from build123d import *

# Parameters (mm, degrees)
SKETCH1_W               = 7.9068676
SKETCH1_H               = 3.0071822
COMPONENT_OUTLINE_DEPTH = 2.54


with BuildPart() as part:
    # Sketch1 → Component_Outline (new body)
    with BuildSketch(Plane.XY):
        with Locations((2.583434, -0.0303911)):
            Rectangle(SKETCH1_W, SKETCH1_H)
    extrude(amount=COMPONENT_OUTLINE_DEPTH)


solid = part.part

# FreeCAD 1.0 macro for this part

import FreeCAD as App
import Part
import Sketcher

V = App.Vector
Q = App.Units.Quantity

doc = App.newDocument("Part")
body = doc.addObject("PartDesign::Body", "Body")

# Sketch on XY plane
sketch1 = body.newObject("Sketcher::SketchObject", "Sketch")
sketch1.AttachmentSupport = (doc.getObject("XY_Plane"), [""])
sketch1.MapMode = "FlatFace"
sketch1.addGeometry([
    Part.LineSegment(V(-1.37, 1.4732, 0), V(-1.37, -1.533982, 0)),
    Part.LineSegment(V(-1.37, -1.533982, 0), V(6.536868, -1.533982, 0)),
    Part.LineSegment(V(6.536868, -1.533982, 0), V(6.536868, 1.4732, 0)),
    Part.LineSegment(V(6.536868, 1.4732, 0), V(-1.37, 1.4732, 0)),
], False)
sketch1.addConstraint([
    Sketcher.Constraint("Coincident", 0, 2, 1, 1),
    Sketcher.Constraint("Coincident", 1, 2, 2, 1),
    Sketcher.Constraint("Coincident", 2, 2, 3, 1),
    Sketcher.Constraint("Coincident", 3, 2, 0, 1),
    Sketcher.Constraint("Vertical", 0),
    Sketcher.Constraint("Horizontal", 1),
    Sketcher.Constraint("Vertical", 2),
    Sketcher.Constraint("Horizontal", 3),
    Sketcher.Constraint("DistanceY", -1, 1, 2, 2, Q("0.058 in")),
    Sketcher.Constraint("DistanceX", 0, 2, -1, 1, Q("1.37 mm")),
    Sketcher.Constraint("DistanceX", 1, 1, 1, 2, Q("7.906868 mm")),
    Sketcher.Constraint("DistanceY", 0, 2, 0, 1, Q("3.007182 mm")),
])
pad1 = body.newObject("PartDesign::Pad", "Pad")
pad1.Profile = sketch1
pad1.Length = Q("0.1 in")

doc.recompute()
